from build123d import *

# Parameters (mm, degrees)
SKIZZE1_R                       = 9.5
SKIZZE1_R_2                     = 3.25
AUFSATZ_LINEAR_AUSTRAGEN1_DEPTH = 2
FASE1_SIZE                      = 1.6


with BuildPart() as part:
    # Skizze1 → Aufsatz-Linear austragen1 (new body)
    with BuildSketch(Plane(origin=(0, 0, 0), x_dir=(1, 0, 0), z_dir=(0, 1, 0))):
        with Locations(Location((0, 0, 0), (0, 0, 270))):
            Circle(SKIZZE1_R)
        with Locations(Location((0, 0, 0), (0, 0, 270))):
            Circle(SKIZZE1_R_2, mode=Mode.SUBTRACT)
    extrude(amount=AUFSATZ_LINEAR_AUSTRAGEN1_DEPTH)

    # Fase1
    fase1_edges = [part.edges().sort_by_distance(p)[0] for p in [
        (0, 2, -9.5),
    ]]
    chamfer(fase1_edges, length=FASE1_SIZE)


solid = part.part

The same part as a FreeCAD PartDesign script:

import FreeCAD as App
import Part
import Sketcher
from FreeCAD import Vector


def edges_at(feature, points):
    """Names of the edges that pass closest to the given points."""
    edges = feature.Shape.Edges
    near = lambda p: min(range(len(edges)), key=lambda i: edges[i].distToShape(Part.Vertex(*p))[0])
    return sorted({f"Edge{near(p) + 1}" for p in points})

doc = App.newDocument("Part")
params = doc.addObject("Spreadsheet::Sheet", "Params")
for row, (alias, value) in enumerate([
    ("sketch1_diameter", "19 mm"),
    ("sketch1_diameter2", "6.5 mm"),
    ("pad1_length", "2 mm"),
    ("chamfer_size", "1.6 mm"),
], start=1):
    params.set(f"A{row}", alias)
    params.set(f"B{row}", "=" + value)
    params.setAlias(f"B{row}", alias)

body = doc.addObject("PartDesign::Body", "Body")

# Sketch on XZ plane
sketch1 = body.newObject("Sketcher::SketchObject", "Sketch")
sketch1.AttachmentSupport = (doc.getObject("XZ_Plane"), [""])
sketch1.MapMode = "FlatFace"
sketch1.addGeometry(Part.Circle(Vector(0, 0, 0), Vector(0, 0, 1), 9.5), False)
sketch1.addGeometry(Part.Circle(Vector(0, 0, 0), Vector(0, 0, 1), 3.2), False)
sketch1.addConstraint(Sketcher.Constraint("Coincident", 0, 3, -1, 1))
sketch1.addConstraint(Sketcher.Constraint("Coincident", 1, 3, -1, 1))
sketch1.addConstraint(Sketcher.Constraint("Diameter", 0, 19.0))
sketch1.addConstraint(Sketcher.Constraint("Diameter", 1, 6.5))
sketch1.setExpression("Constraints[2]", "Params.sketch1_diameter")
sketch1.setExpression("Constraints[3]", "Params.sketch1_diameter2")
pad1 = body.newObject("PartDesign::Pad", "Pad")
pad1.Profile = sketch1
pad1.setExpression("Length", "Params.pad1_length")
pad1.Reversed = True
doc.recompute()

chamfer = body.newObject("PartDesign::Chamfer", "Chamfer")
chamfer.Base = (pad1, edges_at(pad1, [(0, 2, -9.5)]))
chamfer.setExpression("Size", "Params.chamfer_size")

doc.recompute()
